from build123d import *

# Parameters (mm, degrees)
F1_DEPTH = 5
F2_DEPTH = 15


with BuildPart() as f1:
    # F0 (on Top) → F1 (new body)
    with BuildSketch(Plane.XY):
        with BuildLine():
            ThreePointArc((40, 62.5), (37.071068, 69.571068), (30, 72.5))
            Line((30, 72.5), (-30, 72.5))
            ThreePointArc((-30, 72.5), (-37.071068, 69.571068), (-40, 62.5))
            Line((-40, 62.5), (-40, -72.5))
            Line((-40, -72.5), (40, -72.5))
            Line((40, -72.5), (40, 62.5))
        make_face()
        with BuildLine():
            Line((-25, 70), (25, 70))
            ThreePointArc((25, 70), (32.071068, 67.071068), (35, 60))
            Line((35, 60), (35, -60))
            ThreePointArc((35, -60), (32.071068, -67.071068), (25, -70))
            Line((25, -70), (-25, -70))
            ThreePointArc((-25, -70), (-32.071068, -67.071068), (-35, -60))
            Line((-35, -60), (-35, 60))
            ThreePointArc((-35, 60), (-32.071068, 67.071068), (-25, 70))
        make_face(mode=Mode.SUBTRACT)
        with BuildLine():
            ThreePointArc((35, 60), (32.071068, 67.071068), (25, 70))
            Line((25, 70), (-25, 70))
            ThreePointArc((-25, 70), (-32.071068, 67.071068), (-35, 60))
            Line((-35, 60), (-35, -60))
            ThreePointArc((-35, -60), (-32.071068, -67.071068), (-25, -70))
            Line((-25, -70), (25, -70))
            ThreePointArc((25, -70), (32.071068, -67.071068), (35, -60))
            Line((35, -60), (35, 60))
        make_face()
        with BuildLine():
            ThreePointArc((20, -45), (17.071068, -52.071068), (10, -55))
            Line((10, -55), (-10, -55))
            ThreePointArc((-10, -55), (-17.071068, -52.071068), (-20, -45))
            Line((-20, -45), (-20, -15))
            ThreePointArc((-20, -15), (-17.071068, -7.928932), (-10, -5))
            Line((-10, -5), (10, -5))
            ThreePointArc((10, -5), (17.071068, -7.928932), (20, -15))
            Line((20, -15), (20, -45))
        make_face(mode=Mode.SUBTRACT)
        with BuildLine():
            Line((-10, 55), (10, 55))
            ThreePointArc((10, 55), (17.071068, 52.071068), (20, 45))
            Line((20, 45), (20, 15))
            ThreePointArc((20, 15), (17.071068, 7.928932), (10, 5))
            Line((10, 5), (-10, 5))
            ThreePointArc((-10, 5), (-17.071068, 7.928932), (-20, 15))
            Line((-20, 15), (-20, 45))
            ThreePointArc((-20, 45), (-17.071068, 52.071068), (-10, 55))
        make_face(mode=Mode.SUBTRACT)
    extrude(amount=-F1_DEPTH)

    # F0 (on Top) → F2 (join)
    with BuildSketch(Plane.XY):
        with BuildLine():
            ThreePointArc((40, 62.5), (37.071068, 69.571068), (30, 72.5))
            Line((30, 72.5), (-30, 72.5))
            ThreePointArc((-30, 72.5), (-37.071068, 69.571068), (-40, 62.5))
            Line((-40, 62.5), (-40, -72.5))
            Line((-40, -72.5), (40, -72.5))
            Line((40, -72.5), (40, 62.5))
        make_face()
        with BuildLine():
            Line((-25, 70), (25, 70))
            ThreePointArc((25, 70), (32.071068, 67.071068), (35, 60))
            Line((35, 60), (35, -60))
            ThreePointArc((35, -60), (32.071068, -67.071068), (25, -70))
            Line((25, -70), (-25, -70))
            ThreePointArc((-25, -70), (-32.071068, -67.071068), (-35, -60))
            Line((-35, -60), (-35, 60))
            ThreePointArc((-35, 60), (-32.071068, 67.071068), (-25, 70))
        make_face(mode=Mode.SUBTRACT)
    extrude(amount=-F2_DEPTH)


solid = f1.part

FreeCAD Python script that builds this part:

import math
import FreeCAD as App
import Part
import Sketcher
from FreeCAD import Vector
Q = App.Units.Quantity

doc = App.newDocument("Part")
params = doc.addObject("Spreadsheet::Sheet", "Params")
for row, (alias, value) in enumerate([
    ("sketch1_radius", "9.999999 mm"),
    ("sketch1_width", "60 mm"),
    ("sketch1_width2", "20 mm"),
    ("sketch1_height", "135 mm"),
    ("sketch1_height2", "30 mm"),
    ("pad1_length", "5 mm"),
    ("sketch2_radius", "9.999999 mm"),
    ("sketch2_width", "60 mm"),
    ("sketch2_width2", "50 mm"),
    ("sketch2_height", "135 mm"),
    ("sketch2_height2", "120 mm"),
    ("pad2_length", "15 mm"),
], start=1):
    params.set(f"A{row}", alias)
    params.set(f"B{row}", "=" + value)
    params.setAlias(f"B{row}", alias)

body = doc.addObject("PartDesign::Body", "Body")

sketch1 = doc.addObject("Sketcher::SketchObject", "Sketch")
body.addObject(sketch1)
sketch1.AttachmentSupport = (doc.XY_Plane, [""])
sketch1.MapMode = "FlatFace"
sketch1.addGeometry([
    Part.ArcOfCircle(Part.Circle(Vector(30, 63, 0), Vector(0, 0, 1), 10), math.radians(0), math.radians(90)),
    Part.LineSegment(Vector(30, 72, 0), Vector(-30, 72, 0)),
    Part.ArcOfCircle(Part.Circle(Vector(-30, 63, 0), Vector(0, 0, 1), 10), math.radians(90), math.radians(180)),
    Part.LineSegment(Vector(-40, 62, 0), Vector(-40, -72, 0)),
    Part.LineSegment(Vector(-40, -72, 0), Vector(40, -72, 0)),
    Part.LineSegment(Vector(40, -72, 0), Vector(40, 62, 0)),
    Part.LineSegment(Vector(20, -15, 0), Vector(20, -45, 0)),
    Part.ArcOfCircle(Part.Circle(Vector(10, -45, 0), Vector(0, 0, 1), 10), math.radians(-90), math.radians(0)),
    Part.LineSegment(Vector(10, -55, 0), Vector(-10, -55, 0)),
    Part.ArcOfCircle(Part.Circle(Vector(-10, -45, 0), Vector(0, 0, 1), 10), math.radians(180), math.radians(270)),
    Part.LineSegment(Vector(-20, -45, 0), Vector(-20, -15, 0)),
    Part.ArcOfCircle(Part.Circle(Vector(-10, -15, 0), Vector(0, 0, 1), 10), math.radians(90), math.radians(180)),
    Part.LineSegment(Vector(-10, -5, 0), Vector(10, -5, 0)),
    Part.ArcOfCircle(Part.Circle(Vector(10, -15, 0), Vector(0, 0, 1), 10), math.radians(0), math.radians(90)),
    Part.ArcOfCircle(Part.Circle(Vector(-10, 45, 0), Vector(0, 0, 1), 10), math.radians(90), math.radians(180)),
    Part.LineSegment(Vector(-10, 55, 0), Vector(10, 55, 0)),
    Part.ArcOfCircle(Part.Circle(Vector(10, 45, 0), Vector(0, 0, 1), 10), math.radians(0), math.radians(90)),
    Part.LineSegment(Vector(20, 45, 0), Vector(20, 15, 0)),
    Part.ArcOfCircle(Part.Circle(Vector(10, 15, 0), Vector(0, 0, 1), 10), math.radians(-90), math.radians(0)),
    Part.LineSegment(Vector(10, 5, 0), Vector(-10, 5, 0)),
    Part.ArcOfCircle(Part.Circle(Vector(-10, 15, 0), Vector(0, 0, 1), 10), math.radians(180), math.radians(270)),
    Part.LineSegment(Vector(-20, 15, 0), Vector(-20, 45, 0)),
], False)
sketch1.addConstraint([
    Sketcher.Constraint("Tangent", 0, 2, 1, 1),
    Sketcher.Constraint("Tangent", 1, 2, 2, 1),
    Sketcher.Constraint("Tangent", 2, 2, 3, 1),
    Sketcher.Constraint("Coincident", 3, 2, 4, 1),
    Sketcher.Constraint("Coincident", 4, 2, 5, 1),
    Sketcher.Constraint("Tangent", 5, 2, 0, 1),
    Sketcher.Constraint("Tangent", 6, 2, 7, 2),
    Sketcher.Constraint("Tangent", 7, 1, 8, 1),
    Sketcher.Constraint("Tangent", 8, 2, 9, 2),
    Sketcher.Constraint("Tangent", 9, 1, 10, 1),
    Sketcher.Constraint("Tangent", 10, 2, 11, 2),
    Sketcher.Constraint("Tangent", 11, 1, 12, 1),
    Sketcher.Constraint("Tangent", 12, 2, 13, 2),
    Sketcher.Constraint("Tangent", 13, 1, 6, 1),
    Sketcher.Constraint("Tangent", 14, 1, 15, 1),
    Sketcher.Constraint("Tangent", 15, 2, 16, 2),
    Sketcher.Constraint("Tangent", 16, 1, 17, 1),
    Sketcher.Constraint("Tangent", 17, 2, 18, 2),
    Sketcher.Constraint("Tangent", 18, 1, 19, 1),
    Sketcher.Constraint("Tangent", 19, 2, 20, 2),
    Sketcher.Constraint("Tangent", 20, 1, 21, 1),
    Sketcher.Constraint("Tangent", 21, 2, 14, 2),
    Sketcher.Constraint("Horizontal", 1),
    Sketcher.Constraint("Vertical", 3),
    Sketcher.Constraint("Horizontal", 4),
    Sketcher.Constraint("Vertical", 5),
    Sketcher.Constraint("Vertical", 6),
    Sketcher.Constraint("Horizontal", 8),
    Sketcher.Constraint("Vertical", 10),
    Sketcher.Constraint("Horizontal", 12),
    Sketcher.Constraint("Horizontal", 15),
    Sketcher.Constraint("Vertical", 17),
    Sketcher.Constraint("Horizontal", 19),
    Sketcher.Constraint("Vertical", 21),
    Sketcher.Constraint("Equal", 0, 2),
    Sketcher.Constraint("Equal", 2, 7),
    Sketcher.Constraint("Equal", 7, 9),
    Sketcher.Constraint("Equal", 9, 11),
    Sketcher.Constraint("Equal", 11, 13),
    Sketcher.Constraint("Equal", 13, 14),
    Sketcher.Constraint("Equal", 14, 16),
    Sketcher.Constraint("Equal", 16, 18),
    Sketcher.Constraint("Equal", 18, 20),
    Sketcher.Constraint("Symmetric", 7, 3, 14, 3, -1, 1),
    Sketcher.Constraint("Symmetric", 11, 3, 18, 3, -1, 1),
    Sketcher.Constraint("Vertical", 11, 3, 14, 3),
    Sketcher.Constraint("Radius", 0, Q("9.999999 mm")),
    Sketcher.Constraint("DistanceX", 1, 2, 1, 1, Q("60 mm")),
    Sketcher.Constraint("DistanceX", 8, 2, 8, 1, Q("20 mm")),
    Sketcher.Constraint("DistanceY", 3, 2, 3, 1, Q("135 mm")),
    Sketcher.Constraint("DistanceY", 6, 2, 6, 1, Q("30 mm")),
    Sketcher.Constraint("DistanceX", -1, 1, 0, 3, Q("30.000001 mm")),
    Sketcher.Constraint("DistanceY", 7, 3, -1, 1, Q("45.000001 mm")),
    Sketcher.Constraint("DistanceY", -1, 1, 0, 3, Q("62.500001 mm")),
])
sketch1.setExpression("Constraints[46]", "Params.sketch1_radius")
sketch1.setExpression("Constraints[47]", "Params.sketch1_width")
sketch1.setExpression("Constraints[48]", "Params.sketch1_width2")
sketch1.setExpression("Constraints[49]", "Params.sketch1_height")
sketch1.setExpression("Constraints[50]", "Params.sketch1_height2")
pad1 = doc.addObject("PartDesign::Pad", "Pad")
body.addObject(pad1)
pad1.Profile = sketch1
pad1.setExpression("Length", "Params.pad1_length")
pad1.Reversed = True

sketch2 = doc.addObject("Sketcher::SketchObject", "Sketch001")
body.addObject(sketch2)
sketch2.AttachmentSupport = (doc.XY_Plane, [""])
sketch2.MapMode = "FlatFace"
sketch2.addGeometry([
    Part.ArcOfCircle(Part.Circle(Vector(30, 63, 0), Vector(0, 0, 1), 10), math.radians(0), math.radians(90)),
    Part.LineSegment(Vector(30, 72, 0), Vector(-30, 72, 0)),
    Part.ArcOfCircle(Part.Circle(Vector(-30, 63, 0), Vector(0, 0, 1), 10), math.radians(90), math.radians(180)),
    Part.LineSegment(Vector(-40, 62, 0), Vector(-40, -72, 0)),
    Part.LineSegment(Vector(-40, -72, 0), Vector(40, -72, 0)),
    Part.LineSegment(Vector(40, -72, 0), Vector(40, 62, 0)),
    Part.ArcOfCircle(Part.Circle(Vector(-25, 60, 0), Vector(0, 0, 1), 10), math.radians(90), math.radians(180)),
    Part.LineSegment(Vector(-25, 70, 0), Vector(25, 70, 0)),
    Part.ArcOfCircle(Part.Circle(Vector(25, 60, 0), Vector(0, 0, 1), 10), math.radians(0), math.radians(90)),
    Part.LineSegment(Vector(35, 60, 0), Vector(35, -60, 0)),
    Part.ArcOfCircle(Part.Circle(Vector(25, -60, 0), Vector(0, 0, 1), 10), math.radians(-90), math.radians(0)),
    Part.LineSegment(Vector(25, -70, 0), Vector(-25, -70, 0)),
    Part.ArcOfCircle(Part.Circle(Vector(-25, -60, 0), Vector(0, 0, 1), 10), math.radians(180), math.radians(270)),
    Part.LineSegment(Vector(-35, -60, 0), Vector(-35, 60, 0)),
], False)
sketch2.addConstraint([
    Sketcher.Constraint("Tangent", 0, 2, 1, 1),
    Sketcher.Constraint("Tangent", 1, 2, 2, 1),
    Sketcher.Constraint("Tangent", 2, 2, 3, 1),
    Sketcher.Constraint("Coincident", 3, 2, 4, 1),
    Sketcher.Constraint("Coincident", 4, 2, 5, 1),
    Sketcher.Constraint("Tangent", 5, 2, 0, 1),
    Sketcher.Constraint("Tangent", 6, 1, 7, 1),
    Sketcher.Constraint("Tangent", 7, 2, 8, 2),
    Sketcher.Constraint("Tangent", 8, 1, 9, 1),
    Sketcher.Constraint("Tangent", 9, 2, 10, 2),
    Sketcher.Constraint("Tangent", 10, 1, 11, 1),
    Sketcher.Constraint("Tangent", 11, 2, 12, 2),
    Sketcher.Constraint("Tangent", 12, 1, 13, 1),
    Sketcher.Constraint("Tangent", 13, 2, 6, 2),
    Sketcher.Constraint("Horizontal", 1),
    Sketcher.Constraint("Vertical", 3),
    Sketcher.Constraint("Horizontal", 4),
    Sketcher.Constraint("Vertical", 5),
    Sketcher.Constraint("Horizontal", 7),
    Sketcher.Constraint("Vertical", 9),
    Sketcher.Constraint("Horizontal", 11),
    Sketcher.Constraint("Vertical", 13),
    Sketcher.Constraint("Equal", 0, 2),
    Sketcher.Constraint("Equal", 2, 6),
    Sketcher.Constraint("Equal", 6, 8),
    Sketcher.Constraint("Equal", 8, 10),
    Sketcher.Constraint("Equal", 10, 12),
    Sketcher.Constraint("Symmetric", 6, 3, 10, 3, -1, 1),
    Sketcher.Constraint("Radius", 0, Q("9.999999 mm")),
    Sketcher.Constraint("DistanceX", 1, 2, 1, 1, Q("60 mm")),
    Sketcher.Constraint("DistanceX", 7, 1, 7, 2, Q("50 mm")),
    Sketcher.Constraint("DistanceY", 3, 2, 3, 1, Q("135 mm")),
    Sketcher.Constraint("DistanceY", 9, 2, 9, 1, Q("120 mm")),
    Sketcher.Constraint("DistanceX", -1, 1, 0, 3, Q("30.000001 mm")),
    Sketcher.Constraint("DistanceY", -1, 1, 0, 3, Q("62.500001 mm")),
])
sketch2.setExpression("Constraints[28]", "Params.sketch2_radius")
sketch2.setExpression("Constraints[29]", "Params.sketch2_width")
sketch2.setExpression("Constraints[30]", "Params.sketch2_width2")
sketch2.setExpression("Constraints[31]", "Params.sketch2_height")
sketch2.setExpression("Constraints[32]", "Params.sketch2_height2")
pad2 = doc.addObject("PartDesign::Pad", "Pad001")
body.addObject(pad2)
pad2.Profile = sketch2
pad2.setExpression("Length", "Params.pad2_length")
pad2.Reversed = True

doc.recompute()
